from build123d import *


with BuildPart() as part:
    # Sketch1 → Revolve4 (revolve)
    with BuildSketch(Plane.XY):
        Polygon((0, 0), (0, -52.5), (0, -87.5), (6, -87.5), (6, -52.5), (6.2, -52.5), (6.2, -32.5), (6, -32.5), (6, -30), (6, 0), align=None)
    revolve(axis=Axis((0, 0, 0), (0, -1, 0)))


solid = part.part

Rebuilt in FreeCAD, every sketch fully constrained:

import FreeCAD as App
import Part
import Sketcher
from FreeCAD import Vector


def add_polygon(sketch, points):
    """Adds a closed chain of lines whose ends are joined by coincident constraints."""
    first, n = sketch.GeometryCount, len(points)
    for a, b in zip(points, points[1:] + points[:1]):
        sketch.addGeometry(Part.LineSegment(App.Vector(*a, 0), App.Vector(*b, 0)), False)
    for i in range(n):
        sketch.addConstraint(Sketcher.Constraint("Coincident", first + i, 2, first + (i + 1) % n, 1))

doc = App.newDocument("Part")
body = doc.addObject("PartDesign::Body", "Body")

# Sketch on XY plane
sketch1 = doc.addObject("Sketcher::SketchObject", "Sketch")
body.addObject(sketch1)
sketch1.AttachmentSupport = (doc.XY_Plane, [""])
sketch1.MapMode = "FlatFace"
add_polygon(sketch1, [(0, 0), (0, -87.5), (6, -87.5), (6, -52.5), (6.2, -52.5), (6.2, -32.5), (6, -32.5), (6, 0)])  # lines 0-7
sketch1.addConstraint(Sketcher.Constraint("Vertical", 0))
sketch1.addConstraint(Sketcher.Constraint("Horizontal", 1))
sketch1.addConstraint(Sketcher.Constraint("Vertical", 2))
sketch1.addConstraint(Sketcher.Constraint("Horizontal", 3))
sketch1.addConstraint(Sketcher.Constraint("Vertical", 4))
sketch1.addConstraint(Sketcher.Constraint("Horizontal", 5))
sketch1.addConstraint(Sketcher.Constraint("Vertical", 6))
sketch1.addConstraint(Sketcher.Constraint("Horizontal", 7))
sketch1.addConstraint(Sketcher.Constraint("Coincident", 7, 2, -1, 1))
sketch1.addConstraint(Sketcher.Constraint("Vertical", 2, 2, 5, 2))
sketch1.addConstraint(Sketcher.Constraint("DistanceX", 1, 1, 1, 2, 6.0))
sketch1.addConstraint(Sketcher.Constraint("DistanceY", 2, 1, 2, 2, 35.0))
sketch1.addConstraint(Sketcher.Constraint("DistanceY", 4, 1, 4, 2, 20.0))
sketch1.addConstraint(Sketcher.Constraint("DistanceX", 3, 1, 3, 2, 0.2))
sketch1.addConstraint(Sketcher.Constraint("DistanceY", 0, 2, 0, 1, 87.5))
revolution = doc.addObject("PartDesign::Revolution", "Revolution")
body.addObject(revolution)
revolution.Profile = sketch1
revolution.ReferenceAxis = (sketch1, ["V_Axis"])
revolution.Angle = 360

doc.recompute()
